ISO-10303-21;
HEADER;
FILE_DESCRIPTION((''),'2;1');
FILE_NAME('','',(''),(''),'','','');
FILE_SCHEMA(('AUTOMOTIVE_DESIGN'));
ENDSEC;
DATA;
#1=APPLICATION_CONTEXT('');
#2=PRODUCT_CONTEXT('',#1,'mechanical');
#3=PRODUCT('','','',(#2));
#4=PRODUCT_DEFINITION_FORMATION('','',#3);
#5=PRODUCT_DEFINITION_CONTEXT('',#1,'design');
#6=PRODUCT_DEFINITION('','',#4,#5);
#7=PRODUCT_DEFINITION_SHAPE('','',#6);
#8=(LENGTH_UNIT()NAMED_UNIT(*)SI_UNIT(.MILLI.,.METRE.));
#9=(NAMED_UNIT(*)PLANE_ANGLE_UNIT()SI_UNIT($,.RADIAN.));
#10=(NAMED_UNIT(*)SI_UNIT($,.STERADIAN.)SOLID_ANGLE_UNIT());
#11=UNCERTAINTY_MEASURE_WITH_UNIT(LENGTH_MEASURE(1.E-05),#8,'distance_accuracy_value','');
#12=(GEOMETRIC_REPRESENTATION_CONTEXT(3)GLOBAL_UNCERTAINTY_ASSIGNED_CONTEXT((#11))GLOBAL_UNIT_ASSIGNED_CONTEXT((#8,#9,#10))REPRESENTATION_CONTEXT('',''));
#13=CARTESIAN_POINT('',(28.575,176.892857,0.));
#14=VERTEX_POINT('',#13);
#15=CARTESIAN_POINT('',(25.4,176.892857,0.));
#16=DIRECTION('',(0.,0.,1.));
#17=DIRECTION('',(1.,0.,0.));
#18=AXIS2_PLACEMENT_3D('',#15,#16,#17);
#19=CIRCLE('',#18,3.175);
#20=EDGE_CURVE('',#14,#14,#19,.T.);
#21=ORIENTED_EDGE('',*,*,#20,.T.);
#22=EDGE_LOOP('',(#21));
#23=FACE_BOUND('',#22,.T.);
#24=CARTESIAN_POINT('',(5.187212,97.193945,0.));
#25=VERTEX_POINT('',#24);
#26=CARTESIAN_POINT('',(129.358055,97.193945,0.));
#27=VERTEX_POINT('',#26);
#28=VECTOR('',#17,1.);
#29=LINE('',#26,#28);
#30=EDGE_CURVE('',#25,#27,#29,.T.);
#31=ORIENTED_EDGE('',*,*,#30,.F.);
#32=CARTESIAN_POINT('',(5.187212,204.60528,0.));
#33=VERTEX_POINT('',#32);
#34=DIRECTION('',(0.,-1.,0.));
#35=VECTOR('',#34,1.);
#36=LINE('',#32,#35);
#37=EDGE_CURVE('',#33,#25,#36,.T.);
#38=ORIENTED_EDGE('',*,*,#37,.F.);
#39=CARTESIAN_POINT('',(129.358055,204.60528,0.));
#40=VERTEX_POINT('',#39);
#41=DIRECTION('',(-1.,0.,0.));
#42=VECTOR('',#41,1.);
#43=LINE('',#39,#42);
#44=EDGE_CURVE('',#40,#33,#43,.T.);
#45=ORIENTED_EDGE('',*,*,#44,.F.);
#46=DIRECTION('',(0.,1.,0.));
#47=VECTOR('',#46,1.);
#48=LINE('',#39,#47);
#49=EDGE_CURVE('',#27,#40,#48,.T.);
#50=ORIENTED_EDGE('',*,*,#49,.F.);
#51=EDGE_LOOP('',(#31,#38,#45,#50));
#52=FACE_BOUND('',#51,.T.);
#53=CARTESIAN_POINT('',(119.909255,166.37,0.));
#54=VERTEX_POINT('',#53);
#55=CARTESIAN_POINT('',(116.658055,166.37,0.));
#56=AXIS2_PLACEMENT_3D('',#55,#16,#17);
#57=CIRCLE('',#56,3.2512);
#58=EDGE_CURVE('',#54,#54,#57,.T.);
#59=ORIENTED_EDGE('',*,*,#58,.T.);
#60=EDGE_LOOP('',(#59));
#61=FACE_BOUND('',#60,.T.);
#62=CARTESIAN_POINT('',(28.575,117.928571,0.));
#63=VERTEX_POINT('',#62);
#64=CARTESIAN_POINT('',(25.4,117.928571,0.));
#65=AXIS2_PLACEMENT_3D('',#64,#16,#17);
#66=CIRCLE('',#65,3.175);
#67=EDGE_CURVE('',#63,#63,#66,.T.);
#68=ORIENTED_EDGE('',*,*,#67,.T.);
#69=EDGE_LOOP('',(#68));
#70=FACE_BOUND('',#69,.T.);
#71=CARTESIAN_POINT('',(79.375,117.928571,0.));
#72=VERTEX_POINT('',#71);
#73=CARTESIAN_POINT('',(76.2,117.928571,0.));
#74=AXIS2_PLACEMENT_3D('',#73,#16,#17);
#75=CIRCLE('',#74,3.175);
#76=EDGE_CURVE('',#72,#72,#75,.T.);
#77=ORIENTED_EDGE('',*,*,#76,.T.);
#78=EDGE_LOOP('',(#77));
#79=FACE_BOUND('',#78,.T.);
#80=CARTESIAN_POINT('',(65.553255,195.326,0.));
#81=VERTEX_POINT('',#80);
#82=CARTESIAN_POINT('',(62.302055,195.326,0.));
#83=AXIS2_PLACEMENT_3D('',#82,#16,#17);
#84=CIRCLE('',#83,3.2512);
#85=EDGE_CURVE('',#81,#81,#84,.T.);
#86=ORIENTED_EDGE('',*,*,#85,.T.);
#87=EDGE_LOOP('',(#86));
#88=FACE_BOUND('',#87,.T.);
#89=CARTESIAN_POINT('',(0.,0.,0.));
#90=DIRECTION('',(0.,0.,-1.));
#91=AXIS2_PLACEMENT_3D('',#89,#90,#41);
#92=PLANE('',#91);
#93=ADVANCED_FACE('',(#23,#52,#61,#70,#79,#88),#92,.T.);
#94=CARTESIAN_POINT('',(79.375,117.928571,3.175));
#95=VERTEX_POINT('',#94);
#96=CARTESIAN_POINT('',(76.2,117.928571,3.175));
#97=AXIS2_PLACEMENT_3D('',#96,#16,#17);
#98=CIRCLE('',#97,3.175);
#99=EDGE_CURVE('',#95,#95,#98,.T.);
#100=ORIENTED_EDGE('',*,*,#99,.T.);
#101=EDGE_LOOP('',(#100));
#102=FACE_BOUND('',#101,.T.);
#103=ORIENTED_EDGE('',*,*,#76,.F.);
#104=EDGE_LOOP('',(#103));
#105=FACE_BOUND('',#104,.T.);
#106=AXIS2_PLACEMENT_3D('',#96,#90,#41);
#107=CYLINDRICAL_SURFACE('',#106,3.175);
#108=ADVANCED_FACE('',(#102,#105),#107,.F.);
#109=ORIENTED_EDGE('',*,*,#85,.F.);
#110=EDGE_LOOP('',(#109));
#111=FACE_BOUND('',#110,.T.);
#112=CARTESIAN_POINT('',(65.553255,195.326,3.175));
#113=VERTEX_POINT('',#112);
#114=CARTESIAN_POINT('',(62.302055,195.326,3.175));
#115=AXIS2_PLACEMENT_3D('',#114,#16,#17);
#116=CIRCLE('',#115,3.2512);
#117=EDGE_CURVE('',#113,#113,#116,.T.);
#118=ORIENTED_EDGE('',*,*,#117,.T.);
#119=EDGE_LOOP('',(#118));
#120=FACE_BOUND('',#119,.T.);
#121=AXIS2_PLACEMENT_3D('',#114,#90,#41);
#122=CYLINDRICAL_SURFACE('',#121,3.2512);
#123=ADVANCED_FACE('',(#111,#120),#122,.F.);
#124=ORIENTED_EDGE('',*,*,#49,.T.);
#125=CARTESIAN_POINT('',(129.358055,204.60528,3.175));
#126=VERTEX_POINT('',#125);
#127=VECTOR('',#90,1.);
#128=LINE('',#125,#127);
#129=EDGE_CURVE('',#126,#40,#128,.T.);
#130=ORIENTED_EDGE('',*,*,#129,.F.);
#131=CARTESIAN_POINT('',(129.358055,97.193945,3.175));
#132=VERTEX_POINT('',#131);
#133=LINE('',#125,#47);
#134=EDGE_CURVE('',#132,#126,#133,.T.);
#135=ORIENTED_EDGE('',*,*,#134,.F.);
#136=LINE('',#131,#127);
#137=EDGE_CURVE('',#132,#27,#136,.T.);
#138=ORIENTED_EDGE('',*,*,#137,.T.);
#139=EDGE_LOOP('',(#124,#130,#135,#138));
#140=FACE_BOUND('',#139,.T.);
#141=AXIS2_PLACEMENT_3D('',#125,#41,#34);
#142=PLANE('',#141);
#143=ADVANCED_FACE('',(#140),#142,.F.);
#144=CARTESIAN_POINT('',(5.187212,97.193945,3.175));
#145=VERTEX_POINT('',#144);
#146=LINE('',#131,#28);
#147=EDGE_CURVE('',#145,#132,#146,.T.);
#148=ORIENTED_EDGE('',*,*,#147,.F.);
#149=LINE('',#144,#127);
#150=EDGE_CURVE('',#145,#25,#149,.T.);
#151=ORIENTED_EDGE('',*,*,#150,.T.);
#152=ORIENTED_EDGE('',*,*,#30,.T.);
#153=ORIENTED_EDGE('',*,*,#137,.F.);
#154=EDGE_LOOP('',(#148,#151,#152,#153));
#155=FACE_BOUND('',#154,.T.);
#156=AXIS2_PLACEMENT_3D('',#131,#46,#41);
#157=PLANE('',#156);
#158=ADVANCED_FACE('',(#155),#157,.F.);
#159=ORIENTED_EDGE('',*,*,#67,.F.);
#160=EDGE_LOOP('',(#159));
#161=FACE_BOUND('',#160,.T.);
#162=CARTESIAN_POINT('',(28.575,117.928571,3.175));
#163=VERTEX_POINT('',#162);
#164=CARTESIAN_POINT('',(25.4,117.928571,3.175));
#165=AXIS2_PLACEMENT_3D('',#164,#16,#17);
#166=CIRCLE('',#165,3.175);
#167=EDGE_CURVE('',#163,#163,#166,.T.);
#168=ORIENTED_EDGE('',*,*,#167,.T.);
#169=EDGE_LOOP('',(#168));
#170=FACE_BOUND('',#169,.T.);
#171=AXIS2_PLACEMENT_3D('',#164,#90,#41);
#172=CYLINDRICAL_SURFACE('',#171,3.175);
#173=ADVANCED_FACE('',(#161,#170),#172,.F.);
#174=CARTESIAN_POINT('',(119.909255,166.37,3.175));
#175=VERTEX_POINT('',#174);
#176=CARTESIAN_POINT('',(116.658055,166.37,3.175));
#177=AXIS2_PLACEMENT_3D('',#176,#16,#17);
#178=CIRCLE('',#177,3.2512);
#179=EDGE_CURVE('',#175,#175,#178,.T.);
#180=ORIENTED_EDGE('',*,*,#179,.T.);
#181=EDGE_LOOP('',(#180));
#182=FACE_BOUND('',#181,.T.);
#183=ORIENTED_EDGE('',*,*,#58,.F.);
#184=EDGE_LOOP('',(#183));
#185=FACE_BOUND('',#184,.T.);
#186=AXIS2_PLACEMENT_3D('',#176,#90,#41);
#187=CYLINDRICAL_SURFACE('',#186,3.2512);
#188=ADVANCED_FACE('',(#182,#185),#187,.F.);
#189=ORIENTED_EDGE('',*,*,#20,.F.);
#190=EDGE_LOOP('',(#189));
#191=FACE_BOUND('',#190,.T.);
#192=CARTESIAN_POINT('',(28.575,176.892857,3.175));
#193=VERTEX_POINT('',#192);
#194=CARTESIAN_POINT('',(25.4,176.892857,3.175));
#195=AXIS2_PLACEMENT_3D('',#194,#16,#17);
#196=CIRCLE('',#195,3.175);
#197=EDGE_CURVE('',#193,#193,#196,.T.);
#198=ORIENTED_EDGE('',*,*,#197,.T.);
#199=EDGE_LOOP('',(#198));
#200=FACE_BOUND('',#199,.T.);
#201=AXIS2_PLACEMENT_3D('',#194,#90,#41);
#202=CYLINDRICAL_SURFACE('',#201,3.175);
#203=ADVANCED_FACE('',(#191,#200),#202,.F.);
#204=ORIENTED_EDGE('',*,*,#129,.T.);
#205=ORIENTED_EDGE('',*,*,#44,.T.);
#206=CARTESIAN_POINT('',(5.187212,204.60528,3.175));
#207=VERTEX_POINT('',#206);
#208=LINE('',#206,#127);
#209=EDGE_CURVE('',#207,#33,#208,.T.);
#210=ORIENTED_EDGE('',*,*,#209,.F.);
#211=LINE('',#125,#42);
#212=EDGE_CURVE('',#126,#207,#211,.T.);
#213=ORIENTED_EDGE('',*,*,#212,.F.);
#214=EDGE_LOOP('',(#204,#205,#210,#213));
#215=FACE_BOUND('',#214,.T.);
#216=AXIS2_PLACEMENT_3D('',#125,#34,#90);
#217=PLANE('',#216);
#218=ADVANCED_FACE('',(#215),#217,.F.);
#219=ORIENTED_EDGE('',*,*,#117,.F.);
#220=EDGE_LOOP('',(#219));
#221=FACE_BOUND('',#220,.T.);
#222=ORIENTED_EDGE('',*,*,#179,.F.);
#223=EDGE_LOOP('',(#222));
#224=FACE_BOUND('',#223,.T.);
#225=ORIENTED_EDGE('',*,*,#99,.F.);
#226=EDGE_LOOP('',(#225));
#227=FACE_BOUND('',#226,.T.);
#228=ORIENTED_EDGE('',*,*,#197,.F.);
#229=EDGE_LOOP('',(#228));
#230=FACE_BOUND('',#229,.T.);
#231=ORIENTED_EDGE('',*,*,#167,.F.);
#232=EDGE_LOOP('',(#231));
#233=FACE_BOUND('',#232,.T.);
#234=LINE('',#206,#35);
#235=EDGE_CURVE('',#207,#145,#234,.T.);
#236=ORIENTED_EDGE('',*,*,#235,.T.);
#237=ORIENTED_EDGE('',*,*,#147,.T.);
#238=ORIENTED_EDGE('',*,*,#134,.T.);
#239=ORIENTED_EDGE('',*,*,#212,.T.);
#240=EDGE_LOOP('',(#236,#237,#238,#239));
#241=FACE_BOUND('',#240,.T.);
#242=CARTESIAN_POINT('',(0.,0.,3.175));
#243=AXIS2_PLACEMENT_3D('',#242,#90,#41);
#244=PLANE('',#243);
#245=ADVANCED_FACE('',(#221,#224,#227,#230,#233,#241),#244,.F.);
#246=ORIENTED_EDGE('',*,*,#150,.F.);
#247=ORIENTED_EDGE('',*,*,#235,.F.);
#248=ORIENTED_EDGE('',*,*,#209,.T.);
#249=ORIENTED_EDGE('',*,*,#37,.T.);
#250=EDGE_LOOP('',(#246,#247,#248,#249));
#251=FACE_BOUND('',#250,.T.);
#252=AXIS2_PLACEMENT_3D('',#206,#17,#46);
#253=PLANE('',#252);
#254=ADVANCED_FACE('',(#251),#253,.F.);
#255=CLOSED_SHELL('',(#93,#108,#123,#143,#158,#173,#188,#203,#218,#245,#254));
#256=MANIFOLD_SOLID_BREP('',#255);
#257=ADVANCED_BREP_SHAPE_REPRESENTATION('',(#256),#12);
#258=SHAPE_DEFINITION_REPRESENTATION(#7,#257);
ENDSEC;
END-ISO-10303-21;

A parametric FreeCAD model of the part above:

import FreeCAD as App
import Part
import Sketcher
from FreeCAD import Vector
Q = App.Units.Quantity

doc = App.newDocument("Part")
body = doc.addObject("PartDesign::Body", "Body")

# Sketch on XY plane
sketch1 = body.newObject("Sketcher::SketchObject", "Sketch")
sketch1.AttachmentSupport = (doc.getObject("XY_Plane"), [""])
sketch1.MapMode = "FlatFace"
sketch1.addGeometry([
    Part.LineSegment(Vector(5.2, 204.6, 0), Vector(5.2, 97.2, 0)),  # 0
    Part.LineSegment(Vector(5.2, 97.2, 0), Vector(129.4, 97.2, 0)),  # 1
    Part.LineSegment(Vector(129.4, 97.2, 0), Vector(129.4, 204.6, 0)),  # 2
    Part.LineSegment(Vector(129.4, 204.6, 0), Vector(5.2, 204.6, 0)),  # 3
    Part.Circle(Vector(25.4, 117.9, 0), Vector(0, 0, 1), 3.2),  # 4
    Part.Circle(Vector(76.2, 117.9, 0), Vector(0, 0, 1), 3.2),  # 5
    Part.Circle(Vector(25.4, 176.9, 0), Vector(0, 0, 1), 3.2),  # 6
    Part.Circle(Vector(62.3, 195.3, 0), Vector(0, 0, 1), 3.3),  # 7
    Part.Circle(Vector(116.7, 166.4, 0), Vector(0, 0, 1), 3.3),  # 8
], False)
sketch1.addConstraint([
    Sketcher.Constraint("Coincident", 0, 2, 1, 1),
    Sketcher.Constraint("Coincident", 1, 2, 2, 1),
    Sketcher.Constraint("Coincident", 2, 2, 3, 1),
    Sketcher.Constraint("Coincident", 3, 2, 0, 1),
    Sketcher.Constraint("Vertical", 0),
    Sketcher.Constraint("Horizontal", 1),
    Sketcher.Constraint("Vertical", 2),
    Sketcher.Constraint("Horizontal", 3),
    Sketcher.Constraint("Equal", 4, 5),
    Sketcher.Constraint("Equal", 5, 6),
    Sketcher.Constraint("Equal", 7, 8),
    Sketcher.Constraint("Horizontal", 4, 3, 5, 3),
    Sketcher.Constraint("Vertical", 4, 3, 6, 3),
    Sketcher.Constraint("Diameter", 4, Q("0.25 in")),
    Sketcher.Constraint("Diameter", 7, Q("0.256 in")),
    Sketcher.Constraint("DistanceX", -1, 1, 4, 3, Q("1 in")),
    Sketcher.Constraint("DistanceX", -1, 1, 5, 3, Q("3 in")),
    Sketcher.Constraint("DistanceX", 8, 3, 1, 2, Q("0.5 in")),
    Sketcher.Constraint("DistanceY", -1, 1, 7, 3, Q("7.69 in")),
    Sketcher.Constraint("DistanceY", -1, 1, 8, 3, Q("6.55 in")),
    Sketcher.Constraint("DistanceX", 7, 3, 8, 3, Q("2.14 in")),
    Sketcher.Constraint("DistanceX", 1, 1, 1, 2, 124.170843),
    Sketcher.Constraint("DistanceY", 0, 2, 0, 1, 107.411335),
    Sketcher.Constraint("DistanceY", -1, 1, 4, 3, 117.928571),
    Sketcher.Constraint("DistanceX", -1, 1, 0, 2, 5.187212),
    Sketcher.Constraint("DistanceY", -1, 1, 2, 2, 204.60528),
    Sketcher.Constraint("DistanceY", 0, 2, 6, 3, 79.698912),
])
pad1 = body.newObject("PartDesign::Pad", "Pad")
pad1.Profile = sketch1
pad1.Length = Q("0.125 in")

doc.recompute()
